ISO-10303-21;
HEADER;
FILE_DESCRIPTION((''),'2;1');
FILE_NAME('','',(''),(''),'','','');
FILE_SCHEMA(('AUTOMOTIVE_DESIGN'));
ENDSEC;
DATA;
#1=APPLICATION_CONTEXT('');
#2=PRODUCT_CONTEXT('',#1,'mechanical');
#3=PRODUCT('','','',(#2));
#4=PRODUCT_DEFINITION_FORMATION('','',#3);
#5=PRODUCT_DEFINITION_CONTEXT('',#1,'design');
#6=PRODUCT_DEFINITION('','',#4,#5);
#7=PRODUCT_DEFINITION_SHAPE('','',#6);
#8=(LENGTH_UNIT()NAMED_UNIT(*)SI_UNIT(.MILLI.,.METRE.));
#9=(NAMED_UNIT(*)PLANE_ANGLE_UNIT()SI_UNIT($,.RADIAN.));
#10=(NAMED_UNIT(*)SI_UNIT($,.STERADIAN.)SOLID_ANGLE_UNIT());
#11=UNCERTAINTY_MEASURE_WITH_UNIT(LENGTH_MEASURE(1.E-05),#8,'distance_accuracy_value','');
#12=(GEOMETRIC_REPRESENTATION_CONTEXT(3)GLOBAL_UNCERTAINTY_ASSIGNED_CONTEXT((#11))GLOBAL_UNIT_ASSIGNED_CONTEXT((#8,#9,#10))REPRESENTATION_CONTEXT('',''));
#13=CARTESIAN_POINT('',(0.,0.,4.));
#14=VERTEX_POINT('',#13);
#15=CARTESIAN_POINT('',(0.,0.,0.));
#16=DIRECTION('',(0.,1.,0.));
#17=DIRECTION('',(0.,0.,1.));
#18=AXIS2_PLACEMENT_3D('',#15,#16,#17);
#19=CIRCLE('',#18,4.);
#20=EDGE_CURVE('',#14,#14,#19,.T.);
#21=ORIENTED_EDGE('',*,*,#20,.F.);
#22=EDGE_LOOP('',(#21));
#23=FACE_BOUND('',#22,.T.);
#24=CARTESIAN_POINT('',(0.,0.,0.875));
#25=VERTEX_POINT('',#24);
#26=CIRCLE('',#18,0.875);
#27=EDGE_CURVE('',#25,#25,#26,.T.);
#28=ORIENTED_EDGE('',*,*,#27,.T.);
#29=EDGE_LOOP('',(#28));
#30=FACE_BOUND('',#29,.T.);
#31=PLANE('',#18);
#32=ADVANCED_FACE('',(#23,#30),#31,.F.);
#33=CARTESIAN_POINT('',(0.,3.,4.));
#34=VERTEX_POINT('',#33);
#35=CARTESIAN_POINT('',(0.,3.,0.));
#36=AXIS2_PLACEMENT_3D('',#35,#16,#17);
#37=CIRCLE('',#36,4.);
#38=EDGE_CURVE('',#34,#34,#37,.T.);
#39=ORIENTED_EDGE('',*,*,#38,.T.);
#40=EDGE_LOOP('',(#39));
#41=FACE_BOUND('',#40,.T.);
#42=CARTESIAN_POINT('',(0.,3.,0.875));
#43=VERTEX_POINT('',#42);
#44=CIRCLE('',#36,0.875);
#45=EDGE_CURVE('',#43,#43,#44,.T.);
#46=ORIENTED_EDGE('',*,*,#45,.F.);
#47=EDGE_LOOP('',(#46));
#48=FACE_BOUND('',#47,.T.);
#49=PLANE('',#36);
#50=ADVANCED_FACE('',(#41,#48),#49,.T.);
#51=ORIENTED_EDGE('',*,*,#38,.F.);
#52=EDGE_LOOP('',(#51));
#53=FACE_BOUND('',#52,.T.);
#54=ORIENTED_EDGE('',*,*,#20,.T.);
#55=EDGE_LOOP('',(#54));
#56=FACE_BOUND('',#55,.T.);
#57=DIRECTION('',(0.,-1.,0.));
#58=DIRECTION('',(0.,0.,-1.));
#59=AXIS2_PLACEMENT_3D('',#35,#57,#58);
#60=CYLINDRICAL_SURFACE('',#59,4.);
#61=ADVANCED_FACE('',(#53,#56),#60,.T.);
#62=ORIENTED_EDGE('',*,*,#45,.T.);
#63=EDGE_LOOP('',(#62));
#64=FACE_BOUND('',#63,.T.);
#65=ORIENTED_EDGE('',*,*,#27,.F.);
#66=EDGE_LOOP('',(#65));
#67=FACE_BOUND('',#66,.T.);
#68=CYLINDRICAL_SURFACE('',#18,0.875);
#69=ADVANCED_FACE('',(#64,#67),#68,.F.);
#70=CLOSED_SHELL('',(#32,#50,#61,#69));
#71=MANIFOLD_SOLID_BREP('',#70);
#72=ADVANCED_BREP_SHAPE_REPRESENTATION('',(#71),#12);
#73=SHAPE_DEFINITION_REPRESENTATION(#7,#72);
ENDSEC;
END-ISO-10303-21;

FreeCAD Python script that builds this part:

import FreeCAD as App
import Part
import Sketcher
from FreeCAD import Vector
Q = App.Units.Quantity

doc = App.newDocument("Part")
params = doc.addObject("Spreadsheet::Sheet", "Params")
for row, (alias, value) in enumerate([
    ("sketch1_diameter", "8 mm"),
    ("pad1_length", "3 mm"),
    ("sketch2_diameter", "1.75 mm"),
], start=1):
    params.set(f"A{row}", alias)
    params.set(f"B{row}", "=" + value)
    params.setAlias(f"B{row}", alias)

body = doc.addObject("PartDesign::Body", "Body")

# Sketch on XZ plane
sketch1 = body.newObject("Sketcher::SketchObject", "Sketch")
sketch1.AttachmentSupport = (doc.getObject("XZ_Plane"), [""])
sketch1.MapMode = "FlatFace"
sketch1.addGeometry(Part.Circle(Vector(0, 0, 0), Vector(0, 0, 1), 4), False)
sketch1.addConstraint(Sketcher.Constraint("Coincident", 0, 3, -1, 1))
sketch1.addConstraint(Sketcher.Constraint("Diameter", 0, Q("8 mm")))
sketch1.setExpression("Constraints[1]", "Params.sketch1_diameter")
pad1 = body.newObject("PartDesign::Pad", "Pad")
pad1.Profile = sketch1
pad1.setExpression("Length", "Params.pad1_length")
pad1.Reversed = True

# Sketch on XZ plane
sketch2 = body.newObject("Sketcher::SketchObject", "Sketch001")
sketch2.AttachmentSupport = (doc.getObject("XZ_Plane"), [""])
sketch2.MapMode = "FlatFace"
sketch2.AttachmentOffset = App.Placement(Vector(0, 0, -3), App.Rotation())
sketch2.addGeometry(Part.Circle(Vector(0, 0, 0), Vector(0, 0, 1), 0.9), False)
sketch2.addConstraint(Sketcher.Constraint("Coincident", 0, 3, -1, 1))
sketch2.addConstraint(Sketcher.Constraint("Diameter", 0, Q("1.75 mm")))
sketch2.setExpression("Constraints[1]", "Params.sketch2_diameter")
pocket1 = body.newObject("PartDesign::Pocket", "Pocket")
pocket1.Profile = sketch2
pocket1.Type = "ThroughAll"
pocket1.Reversed = True

doc.recompute()
